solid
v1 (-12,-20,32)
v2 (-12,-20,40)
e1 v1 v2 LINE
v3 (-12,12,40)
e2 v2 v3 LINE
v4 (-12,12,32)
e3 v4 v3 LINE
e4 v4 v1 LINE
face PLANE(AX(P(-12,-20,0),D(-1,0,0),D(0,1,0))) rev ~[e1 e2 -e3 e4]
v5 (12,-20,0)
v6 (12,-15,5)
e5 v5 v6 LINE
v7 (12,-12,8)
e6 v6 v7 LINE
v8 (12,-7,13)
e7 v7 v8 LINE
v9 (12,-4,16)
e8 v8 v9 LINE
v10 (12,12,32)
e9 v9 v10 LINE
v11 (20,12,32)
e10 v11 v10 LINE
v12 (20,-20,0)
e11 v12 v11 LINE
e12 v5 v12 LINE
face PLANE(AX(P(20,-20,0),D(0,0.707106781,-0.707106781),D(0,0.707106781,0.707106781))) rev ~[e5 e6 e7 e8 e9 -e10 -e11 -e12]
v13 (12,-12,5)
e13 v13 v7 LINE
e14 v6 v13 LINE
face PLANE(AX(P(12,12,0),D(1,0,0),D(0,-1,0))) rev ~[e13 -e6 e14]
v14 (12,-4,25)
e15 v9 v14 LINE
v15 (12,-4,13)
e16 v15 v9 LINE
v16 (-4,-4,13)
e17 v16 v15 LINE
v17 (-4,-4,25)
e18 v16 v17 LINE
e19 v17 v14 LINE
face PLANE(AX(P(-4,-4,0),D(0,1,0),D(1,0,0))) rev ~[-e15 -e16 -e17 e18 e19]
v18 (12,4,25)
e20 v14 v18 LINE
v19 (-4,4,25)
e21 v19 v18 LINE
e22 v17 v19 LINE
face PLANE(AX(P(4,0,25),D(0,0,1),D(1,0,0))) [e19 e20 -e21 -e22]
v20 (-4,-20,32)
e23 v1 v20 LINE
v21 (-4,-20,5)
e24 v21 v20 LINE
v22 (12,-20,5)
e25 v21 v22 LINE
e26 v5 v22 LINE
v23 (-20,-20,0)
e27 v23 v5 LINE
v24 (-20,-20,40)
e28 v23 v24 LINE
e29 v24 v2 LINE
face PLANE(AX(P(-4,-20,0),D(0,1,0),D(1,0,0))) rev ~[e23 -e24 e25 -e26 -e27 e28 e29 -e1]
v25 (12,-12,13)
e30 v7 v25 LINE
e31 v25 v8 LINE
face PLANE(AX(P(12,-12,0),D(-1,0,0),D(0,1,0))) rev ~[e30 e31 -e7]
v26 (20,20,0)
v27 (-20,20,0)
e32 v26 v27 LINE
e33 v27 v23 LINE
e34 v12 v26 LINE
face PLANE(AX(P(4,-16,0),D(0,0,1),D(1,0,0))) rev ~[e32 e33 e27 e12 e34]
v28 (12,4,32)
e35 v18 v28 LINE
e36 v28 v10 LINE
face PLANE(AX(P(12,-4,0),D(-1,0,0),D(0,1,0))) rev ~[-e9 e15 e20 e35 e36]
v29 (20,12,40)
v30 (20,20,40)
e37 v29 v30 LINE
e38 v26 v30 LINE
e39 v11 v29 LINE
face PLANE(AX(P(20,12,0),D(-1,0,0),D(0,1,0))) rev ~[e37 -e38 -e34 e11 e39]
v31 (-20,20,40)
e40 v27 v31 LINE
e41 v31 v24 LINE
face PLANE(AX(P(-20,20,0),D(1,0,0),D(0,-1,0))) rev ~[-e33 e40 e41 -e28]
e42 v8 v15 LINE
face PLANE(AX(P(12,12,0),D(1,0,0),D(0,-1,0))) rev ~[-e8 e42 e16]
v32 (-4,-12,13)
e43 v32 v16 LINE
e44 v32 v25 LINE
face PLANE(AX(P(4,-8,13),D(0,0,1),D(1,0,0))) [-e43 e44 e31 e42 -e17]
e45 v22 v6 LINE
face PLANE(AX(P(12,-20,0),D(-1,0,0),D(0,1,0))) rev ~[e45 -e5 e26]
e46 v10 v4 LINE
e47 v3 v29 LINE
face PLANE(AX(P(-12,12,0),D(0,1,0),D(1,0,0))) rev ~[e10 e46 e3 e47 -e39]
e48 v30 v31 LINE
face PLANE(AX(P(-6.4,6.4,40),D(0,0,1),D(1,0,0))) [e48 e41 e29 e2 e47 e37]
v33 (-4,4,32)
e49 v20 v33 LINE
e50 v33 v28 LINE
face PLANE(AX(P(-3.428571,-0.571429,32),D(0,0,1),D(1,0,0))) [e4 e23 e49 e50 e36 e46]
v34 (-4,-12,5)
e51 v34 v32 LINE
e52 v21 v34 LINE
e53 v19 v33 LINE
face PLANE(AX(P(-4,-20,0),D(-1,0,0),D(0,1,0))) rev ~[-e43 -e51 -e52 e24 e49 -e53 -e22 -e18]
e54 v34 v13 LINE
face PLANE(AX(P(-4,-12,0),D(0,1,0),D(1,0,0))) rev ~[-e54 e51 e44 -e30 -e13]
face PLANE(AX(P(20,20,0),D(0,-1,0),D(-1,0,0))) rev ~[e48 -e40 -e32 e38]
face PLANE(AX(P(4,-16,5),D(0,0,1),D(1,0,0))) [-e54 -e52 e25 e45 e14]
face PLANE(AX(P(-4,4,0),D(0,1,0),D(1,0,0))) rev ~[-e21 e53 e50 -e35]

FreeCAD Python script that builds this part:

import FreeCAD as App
import Part
import Sketcher
from FreeCAD import Vector


def add_polygon(sketch, points):
    """Adds a closed chain of lines whose ends are joined by coincident constraints."""
    first, n = sketch.GeometryCount, len(points)
    for a, b in zip(points, points[1:] + points[:1]):
        sketch.addGeometry(Part.LineSegment(App.Vector(*a, 0), App.Vector(*b, 0)), False)
    for i in range(n):
        sketch.addConstraint(Sketcher.Constraint("Coincident", first + i, 2, first + (i + 1) % n, 1))

doc = App.newDocument("Part")
params = doc.addObject("Spreadsheet::Sheet", "Params")
for row, (alias, value) in enumerate([
    ("sketch1_width", "8 mm"),
    ("sketch1_height", "32 mm"),
    ("pad1_length", "32 mm"),
    ("sketch2_width", "32 mm"),
    ("pocket1_length", "25 mm"),
    ("sketch3_width", "40 mm"),
    ("sketch3_width2", "8 mm"),
    ("pad2_length", "40 mm"),
    ("sketch4_width", "8 mm"),
    ("sketch4_width2", "16 mm"),
    ("pad3_length", "32 mm"),
    ("sketch5_width", "16 mm"),
    ("sketch5_height", "8 mm"),
    ("pad4_length", "25 mm"),
    ("sketch6_width", "16 mm"),
    ("sketch6_height", "8 mm"),
    ("pad5_length", "13 mm"),
    ("sketch7_width", "16 mm"),
    ("sketch7_height", "8 mm"),
    ("pad6_length", "5 mm"),
], start=1):
    params.set(f"A{row}", alias)
    params.set(f"B{row}", "=" + value)
    params.setAlias(f"B{row}", alias)

body = doc.addObject("PartDesign::Body", "Body")

sketch1 = body.newObject("Sketcher::SketchObject", "Sketch")
sketch1.AttachmentSupport = (doc.getObject("XY_Plane"), [""])
sketch1.MapMode = "FlatFace"
add_polygon(sketch1, [(12, -20), (20, -20), (20, 12), (12, 12)])
sketch1.addConstraint(Sketcher.Constraint("Horizontal", 0))
sketch1.addConstraint(Sketcher.Constraint("Vertical", 1))
sketch1.addConstraint(Sketcher.Constraint("Horizontal", 2))
sketch1.addConstraint(Sketcher.Constraint("Vertical", 3))
sketch1.addConstraint(Sketcher.Constraint("DistanceX", 0, 1, 0, 2, 8.0))
sketch1.addConstraint(Sketcher.Constraint("DistanceY", 1, 1, 1, 2, 32.0))
sketch1.addConstraint(Sketcher.Constraint("DistanceX", -1, 1, 0, 2, 20.0))
sketch1.addConstraint(Sketcher.Constraint("DistanceY", 0, 2, -1, 1, 20.0))
sketch1.setExpression("Constraints[8]", "Params.sketch1_width")
sketch1.setExpression("Constraints[9]", "Params.sketch1_height")
pad1 = body.newObject("PartDesign::Pad", "Pad")
pad1.Profile = sketch1
pad1.setExpression("Length", "Params.pad1_length")

sketch2 = body.newObject("Sketcher::SketchObject", "Sketch001")
sketch2.AttachmentSupport = (doc.getObject("YZ_Plane"), [""])
sketch2.MapMode = "FlatFace"
sketch2.AttachmentOffset = App.Placement(Vector(0, 0, 20), App.Rotation())
add_polygon(sketch2, [(-20, 0), (12, 32), (-20, 32)])
sketch2.addConstraint(Sketcher.Constraint("Horizontal", 1))
sketch2.addConstraint(Sketcher.Constraint("Vertical", 2))
sketch2.addConstraint(Sketcher.Constraint("PointOnObject", 2, 2, -1))
sketch2.addConstraint(Sketcher.Constraint("Equal", 1, 2))
sketch2.addConstraint(Sketcher.Constraint("DistanceX", 1, 2, 1, 1, 32.0))
sketch2.addConstraint(Sketcher.Constraint("DistanceX", -1, 1, 0, 2, 12.0))
sketch2.setExpression("Constraints[7]", "Params.sketch2_width")
pocket1 = body.newObject("PartDesign::Pocket", "Pocket")
pocket1.Profile = sketch2
pocket1.setExpression("Length", "Params.pocket1_length")

sketch3 = body.newObject("Sketcher::SketchObject", "Sketch002")
sketch3.AttachmentSupport = (doc.getObject("XY_Plane"), [""])
sketch3.MapMode = "FlatFace"
add_polygon(sketch3, [(20, 12), (20, 20), (-20, 20), (-20, -20), (-12, -20), (-12, 12)])
sketch3.addConstraint(Sketcher.Constraint("Vertical", 0))
sketch3.addConstraint(Sketcher.Constraint("Horizontal", 1))
sketch3.addConstraint(Sketcher.Constraint("Vertical", 2))
sketch3.addConstraint(Sketcher.Constraint("Horizontal", 3))
sketch3.addConstraint(Sketcher.Constraint("Vertical", 4))
sketch3.addConstraint(Sketcher.Constraint("Horizontal", 5))
sketch3.addConstraint(Sketcher.Constraint("Symmetric", 0, 2, 2, 2, -1, 1))
sketch3.addConstraint(Sketcher.Constraint("Equal", 3, 0))
sketch3.addConstraint(Sketcher.Constraint("Equal", 1, 2))
sketch3.addConstraint(Sketcher.Constraint("DistanceX", 1, 2, 1, 1, 40.0))
sketch3.addConstraint(Sketcher.Constraint("DistanceX", 3, 1, 3, 2, 8.0))
sketch3.setExpression("Constraints[15]", "Params.sketch3_width")
sketch3.setExpression("Constraints[16]", "Params.sketch3_width2")
pad2 = body.newObject("PartDesign::Pad", "Pad001")
pad2.Profile = sketch3
pad2.setExpression("Length", "Params.pad2_length")

sketch4 = body.newObject("Sketcher::SketchObject", "Sketch003")
sketch4.AttachmentSupport = (doc.getObject("XY_Plane"), [""])
sketch4.MapMode = "FlatFace"
add_polygon(sketch4, [(-12, -20), (-4, -20), (-4, 4), (12, 4), (12, 12), (-12, 12)])
sketch4.addConstraint(Sketcher.Constraint("Horizontal", 0))
sketch4.addConstraint(Sketcher.Constraint("Vertical", 1))
sketch4.addConstraint(Sketcher.Constraint("Horizontal", 2))
sketch4.addConstraint(Sketcher.Constraint("Vertical", 3))
sketch4.addConstraint(Sketcher.Constraint("Horizontal", 4))
sketch4.addConstraint(Sketcher.Constraint("Vertical", 5))
sketch4.addConstraint(Sketcher.Constraint("Equal", 4, 1))
sketch4.addConstraint(Sketcher.Constraint("Equal", 0, 3))
sketch4.addConstraint(Sketcher.Constraint("DistanceX", 0, 1, 0, 2, 8.0))
sketch4.addConstraint(Sketcher.Constraint("DistanceX", 2, 1, 2, 2, 16.0))
sketch4.addConstraint(Sketcher.Constraint("DistanceX", 0, 2, -1, 1, 4.0))
sketch4.addConstraint(Sketcher.Constraint("DistanceY", 0, 2, -1, 1, 20.0))
sketch4.setExpression("Constraints[14]", "Params.sketch4_width")
sketch4.setExpression("Constraints[15]", "Params.sketch4_width2")
pad3 = body.newObject("PartDesign::Pad", "Pad002")
pad3.Profile = sketch4
pad3.setExpression("Length", "Params.pad3_length")

sketch5 = body.newObject("Sketcher::SketchObject", "Sketch004")
sketch5.AttachmentSupport = (doc.getObject("XY_Plane"), [""])
sketch5.MapMode = "FlatFace"
add_polygon(sketch5, [(-4, 4), (-4, -4), (12, -4), (12, 4)])
sketch5.addConstraint(Sketcher.Constraint("Vertical", 0))
sketch5.addConstraint(Sketcher.Constraint("Horizontal", 1))
sketch5.addConstraint(Sketcher.Constraint("Vertical", 2))
sketch5.addConstraint(Sketcher.Constraint("Horizontal", 3))
sketch5.addConstraint(Sketcher.Constraint("DistanceX", 1, 1, 1, 2, 16.0))
sketch5.addConstraint(Sketcher.Constraint("DistanceY", 0, 2, 0, 1, 8.0))
sketch5.addConstraint(Sketcher.Constraint("DistanceX", 0, 2, -1, 1, 4.0))
sketch5.addConstraint(Sketcher.Constraint("DistanceY", 0, 2, -1, 1, 4.0))
sketch5.setExpression("Constraints[8]", "Params.sketch5_width")
sketch5.setExpression("Constraints[9]", "Params.sketch5_height")
pad4 = body.newObject("PartDesign::Pad", "Pad003")
pad4.Profile = sketch5
pad4.setExpression("Length", "Params.pad4_length")

sketch6 = body.newObject("Sketcher::SketchObject", "Sketch005")
sketch6.AttachmentSupport = (doc.getObject("XY_Plane"), [""])
sketch6.MapMode = "FlatFace"
add_polygon(sketch6, [(-4, -4), (-4, -12), (12, -12), (12, -4)])
sketch6.addConstraint(Sketcher.Constraint("Vertical", 0))
sketch6.addConstraint(Sketcher.Constraint("Horizontal", 1))
sketch6.addConstraint(Sketcher.Constraint("Vertical", 2))
sketch6.addConstraint(Sketcher.Constraint("Horizontal", 3))
sketch6.addConstraint(Sketcher.Constraint("DistanceX", 1, 1, 1, 2, 16.0))
sketch6.addConstraint(Sketcher.Constraint("DistanceY", 0, 2, 0, 1, 8.0))
sketch6.addConstraint(Sketcher.Constraint("DistanceX", 0, 2, -1, 1, 4.0))
sketch6.addConstraint(Sketcher.Constraint("DistanceY", 0, 2, -1, 1, 12.0))
sketch6.setExpression("Constraints[8]", "Params.sketch6_width")
sketch6.setExpression("Constraints[9]", "Params.sketch6_height")
pad5 = body.newObject("PartDesign::Pad", "Pad004")
pad5.Profile = sketch6
pad5.setExpression("Length", "Params.pad5_length")

sketch7 = body.newObject("Sketcher::SketchObject", "Sketch006")
sketch7.AttachmentSupport = (doc.getObject("XY_Plane"), [""])
sketch7.MapMode = "FlatFace"
add_polygon(sketch7, [(-4, -12), (-4, -20), (12, -20), (12, -12)])
sketch7.addConstraint(Sketcher.Constraint("Vertical", 0))
sketch7.addConstraint(Sketcher.Constraint("Horizontal", 1))
sketch7.addConstraint(Sketcher.Constraint("Vertical", 2))
sketch7.addConstraint(Sketcher.Constraint("Horizontal", 3))
sketch7.addConstraint(Sketcher.Constraint("DistanceX", 1, 1, 1, 2, 16.0))
sketch7.addConstraint(Sketcher.Constraint("DistanceY", 0, 2, 0, 1, 8.0))
sketch7.addConstraint(Sketcher.Constraint("DistanceX", 0, 2, -1, 1, 4.0))
sketch7.addConstraint(Sketcher.Constraint("DistanceY", 0, 2, -1, 1, 20.0))
sketch7.setExpression("Constraints[8]", "Params.sketch7_width")
sketch7.setExpression("Constraints[9]", "Params.sketch7_height")
pad6 = body.newObject("PartDesign::Pad", "Pad005")
pad6.Profile = sketch7
pad6.setExpression("Length", "Params.pad6_length")

doc.recompute()
